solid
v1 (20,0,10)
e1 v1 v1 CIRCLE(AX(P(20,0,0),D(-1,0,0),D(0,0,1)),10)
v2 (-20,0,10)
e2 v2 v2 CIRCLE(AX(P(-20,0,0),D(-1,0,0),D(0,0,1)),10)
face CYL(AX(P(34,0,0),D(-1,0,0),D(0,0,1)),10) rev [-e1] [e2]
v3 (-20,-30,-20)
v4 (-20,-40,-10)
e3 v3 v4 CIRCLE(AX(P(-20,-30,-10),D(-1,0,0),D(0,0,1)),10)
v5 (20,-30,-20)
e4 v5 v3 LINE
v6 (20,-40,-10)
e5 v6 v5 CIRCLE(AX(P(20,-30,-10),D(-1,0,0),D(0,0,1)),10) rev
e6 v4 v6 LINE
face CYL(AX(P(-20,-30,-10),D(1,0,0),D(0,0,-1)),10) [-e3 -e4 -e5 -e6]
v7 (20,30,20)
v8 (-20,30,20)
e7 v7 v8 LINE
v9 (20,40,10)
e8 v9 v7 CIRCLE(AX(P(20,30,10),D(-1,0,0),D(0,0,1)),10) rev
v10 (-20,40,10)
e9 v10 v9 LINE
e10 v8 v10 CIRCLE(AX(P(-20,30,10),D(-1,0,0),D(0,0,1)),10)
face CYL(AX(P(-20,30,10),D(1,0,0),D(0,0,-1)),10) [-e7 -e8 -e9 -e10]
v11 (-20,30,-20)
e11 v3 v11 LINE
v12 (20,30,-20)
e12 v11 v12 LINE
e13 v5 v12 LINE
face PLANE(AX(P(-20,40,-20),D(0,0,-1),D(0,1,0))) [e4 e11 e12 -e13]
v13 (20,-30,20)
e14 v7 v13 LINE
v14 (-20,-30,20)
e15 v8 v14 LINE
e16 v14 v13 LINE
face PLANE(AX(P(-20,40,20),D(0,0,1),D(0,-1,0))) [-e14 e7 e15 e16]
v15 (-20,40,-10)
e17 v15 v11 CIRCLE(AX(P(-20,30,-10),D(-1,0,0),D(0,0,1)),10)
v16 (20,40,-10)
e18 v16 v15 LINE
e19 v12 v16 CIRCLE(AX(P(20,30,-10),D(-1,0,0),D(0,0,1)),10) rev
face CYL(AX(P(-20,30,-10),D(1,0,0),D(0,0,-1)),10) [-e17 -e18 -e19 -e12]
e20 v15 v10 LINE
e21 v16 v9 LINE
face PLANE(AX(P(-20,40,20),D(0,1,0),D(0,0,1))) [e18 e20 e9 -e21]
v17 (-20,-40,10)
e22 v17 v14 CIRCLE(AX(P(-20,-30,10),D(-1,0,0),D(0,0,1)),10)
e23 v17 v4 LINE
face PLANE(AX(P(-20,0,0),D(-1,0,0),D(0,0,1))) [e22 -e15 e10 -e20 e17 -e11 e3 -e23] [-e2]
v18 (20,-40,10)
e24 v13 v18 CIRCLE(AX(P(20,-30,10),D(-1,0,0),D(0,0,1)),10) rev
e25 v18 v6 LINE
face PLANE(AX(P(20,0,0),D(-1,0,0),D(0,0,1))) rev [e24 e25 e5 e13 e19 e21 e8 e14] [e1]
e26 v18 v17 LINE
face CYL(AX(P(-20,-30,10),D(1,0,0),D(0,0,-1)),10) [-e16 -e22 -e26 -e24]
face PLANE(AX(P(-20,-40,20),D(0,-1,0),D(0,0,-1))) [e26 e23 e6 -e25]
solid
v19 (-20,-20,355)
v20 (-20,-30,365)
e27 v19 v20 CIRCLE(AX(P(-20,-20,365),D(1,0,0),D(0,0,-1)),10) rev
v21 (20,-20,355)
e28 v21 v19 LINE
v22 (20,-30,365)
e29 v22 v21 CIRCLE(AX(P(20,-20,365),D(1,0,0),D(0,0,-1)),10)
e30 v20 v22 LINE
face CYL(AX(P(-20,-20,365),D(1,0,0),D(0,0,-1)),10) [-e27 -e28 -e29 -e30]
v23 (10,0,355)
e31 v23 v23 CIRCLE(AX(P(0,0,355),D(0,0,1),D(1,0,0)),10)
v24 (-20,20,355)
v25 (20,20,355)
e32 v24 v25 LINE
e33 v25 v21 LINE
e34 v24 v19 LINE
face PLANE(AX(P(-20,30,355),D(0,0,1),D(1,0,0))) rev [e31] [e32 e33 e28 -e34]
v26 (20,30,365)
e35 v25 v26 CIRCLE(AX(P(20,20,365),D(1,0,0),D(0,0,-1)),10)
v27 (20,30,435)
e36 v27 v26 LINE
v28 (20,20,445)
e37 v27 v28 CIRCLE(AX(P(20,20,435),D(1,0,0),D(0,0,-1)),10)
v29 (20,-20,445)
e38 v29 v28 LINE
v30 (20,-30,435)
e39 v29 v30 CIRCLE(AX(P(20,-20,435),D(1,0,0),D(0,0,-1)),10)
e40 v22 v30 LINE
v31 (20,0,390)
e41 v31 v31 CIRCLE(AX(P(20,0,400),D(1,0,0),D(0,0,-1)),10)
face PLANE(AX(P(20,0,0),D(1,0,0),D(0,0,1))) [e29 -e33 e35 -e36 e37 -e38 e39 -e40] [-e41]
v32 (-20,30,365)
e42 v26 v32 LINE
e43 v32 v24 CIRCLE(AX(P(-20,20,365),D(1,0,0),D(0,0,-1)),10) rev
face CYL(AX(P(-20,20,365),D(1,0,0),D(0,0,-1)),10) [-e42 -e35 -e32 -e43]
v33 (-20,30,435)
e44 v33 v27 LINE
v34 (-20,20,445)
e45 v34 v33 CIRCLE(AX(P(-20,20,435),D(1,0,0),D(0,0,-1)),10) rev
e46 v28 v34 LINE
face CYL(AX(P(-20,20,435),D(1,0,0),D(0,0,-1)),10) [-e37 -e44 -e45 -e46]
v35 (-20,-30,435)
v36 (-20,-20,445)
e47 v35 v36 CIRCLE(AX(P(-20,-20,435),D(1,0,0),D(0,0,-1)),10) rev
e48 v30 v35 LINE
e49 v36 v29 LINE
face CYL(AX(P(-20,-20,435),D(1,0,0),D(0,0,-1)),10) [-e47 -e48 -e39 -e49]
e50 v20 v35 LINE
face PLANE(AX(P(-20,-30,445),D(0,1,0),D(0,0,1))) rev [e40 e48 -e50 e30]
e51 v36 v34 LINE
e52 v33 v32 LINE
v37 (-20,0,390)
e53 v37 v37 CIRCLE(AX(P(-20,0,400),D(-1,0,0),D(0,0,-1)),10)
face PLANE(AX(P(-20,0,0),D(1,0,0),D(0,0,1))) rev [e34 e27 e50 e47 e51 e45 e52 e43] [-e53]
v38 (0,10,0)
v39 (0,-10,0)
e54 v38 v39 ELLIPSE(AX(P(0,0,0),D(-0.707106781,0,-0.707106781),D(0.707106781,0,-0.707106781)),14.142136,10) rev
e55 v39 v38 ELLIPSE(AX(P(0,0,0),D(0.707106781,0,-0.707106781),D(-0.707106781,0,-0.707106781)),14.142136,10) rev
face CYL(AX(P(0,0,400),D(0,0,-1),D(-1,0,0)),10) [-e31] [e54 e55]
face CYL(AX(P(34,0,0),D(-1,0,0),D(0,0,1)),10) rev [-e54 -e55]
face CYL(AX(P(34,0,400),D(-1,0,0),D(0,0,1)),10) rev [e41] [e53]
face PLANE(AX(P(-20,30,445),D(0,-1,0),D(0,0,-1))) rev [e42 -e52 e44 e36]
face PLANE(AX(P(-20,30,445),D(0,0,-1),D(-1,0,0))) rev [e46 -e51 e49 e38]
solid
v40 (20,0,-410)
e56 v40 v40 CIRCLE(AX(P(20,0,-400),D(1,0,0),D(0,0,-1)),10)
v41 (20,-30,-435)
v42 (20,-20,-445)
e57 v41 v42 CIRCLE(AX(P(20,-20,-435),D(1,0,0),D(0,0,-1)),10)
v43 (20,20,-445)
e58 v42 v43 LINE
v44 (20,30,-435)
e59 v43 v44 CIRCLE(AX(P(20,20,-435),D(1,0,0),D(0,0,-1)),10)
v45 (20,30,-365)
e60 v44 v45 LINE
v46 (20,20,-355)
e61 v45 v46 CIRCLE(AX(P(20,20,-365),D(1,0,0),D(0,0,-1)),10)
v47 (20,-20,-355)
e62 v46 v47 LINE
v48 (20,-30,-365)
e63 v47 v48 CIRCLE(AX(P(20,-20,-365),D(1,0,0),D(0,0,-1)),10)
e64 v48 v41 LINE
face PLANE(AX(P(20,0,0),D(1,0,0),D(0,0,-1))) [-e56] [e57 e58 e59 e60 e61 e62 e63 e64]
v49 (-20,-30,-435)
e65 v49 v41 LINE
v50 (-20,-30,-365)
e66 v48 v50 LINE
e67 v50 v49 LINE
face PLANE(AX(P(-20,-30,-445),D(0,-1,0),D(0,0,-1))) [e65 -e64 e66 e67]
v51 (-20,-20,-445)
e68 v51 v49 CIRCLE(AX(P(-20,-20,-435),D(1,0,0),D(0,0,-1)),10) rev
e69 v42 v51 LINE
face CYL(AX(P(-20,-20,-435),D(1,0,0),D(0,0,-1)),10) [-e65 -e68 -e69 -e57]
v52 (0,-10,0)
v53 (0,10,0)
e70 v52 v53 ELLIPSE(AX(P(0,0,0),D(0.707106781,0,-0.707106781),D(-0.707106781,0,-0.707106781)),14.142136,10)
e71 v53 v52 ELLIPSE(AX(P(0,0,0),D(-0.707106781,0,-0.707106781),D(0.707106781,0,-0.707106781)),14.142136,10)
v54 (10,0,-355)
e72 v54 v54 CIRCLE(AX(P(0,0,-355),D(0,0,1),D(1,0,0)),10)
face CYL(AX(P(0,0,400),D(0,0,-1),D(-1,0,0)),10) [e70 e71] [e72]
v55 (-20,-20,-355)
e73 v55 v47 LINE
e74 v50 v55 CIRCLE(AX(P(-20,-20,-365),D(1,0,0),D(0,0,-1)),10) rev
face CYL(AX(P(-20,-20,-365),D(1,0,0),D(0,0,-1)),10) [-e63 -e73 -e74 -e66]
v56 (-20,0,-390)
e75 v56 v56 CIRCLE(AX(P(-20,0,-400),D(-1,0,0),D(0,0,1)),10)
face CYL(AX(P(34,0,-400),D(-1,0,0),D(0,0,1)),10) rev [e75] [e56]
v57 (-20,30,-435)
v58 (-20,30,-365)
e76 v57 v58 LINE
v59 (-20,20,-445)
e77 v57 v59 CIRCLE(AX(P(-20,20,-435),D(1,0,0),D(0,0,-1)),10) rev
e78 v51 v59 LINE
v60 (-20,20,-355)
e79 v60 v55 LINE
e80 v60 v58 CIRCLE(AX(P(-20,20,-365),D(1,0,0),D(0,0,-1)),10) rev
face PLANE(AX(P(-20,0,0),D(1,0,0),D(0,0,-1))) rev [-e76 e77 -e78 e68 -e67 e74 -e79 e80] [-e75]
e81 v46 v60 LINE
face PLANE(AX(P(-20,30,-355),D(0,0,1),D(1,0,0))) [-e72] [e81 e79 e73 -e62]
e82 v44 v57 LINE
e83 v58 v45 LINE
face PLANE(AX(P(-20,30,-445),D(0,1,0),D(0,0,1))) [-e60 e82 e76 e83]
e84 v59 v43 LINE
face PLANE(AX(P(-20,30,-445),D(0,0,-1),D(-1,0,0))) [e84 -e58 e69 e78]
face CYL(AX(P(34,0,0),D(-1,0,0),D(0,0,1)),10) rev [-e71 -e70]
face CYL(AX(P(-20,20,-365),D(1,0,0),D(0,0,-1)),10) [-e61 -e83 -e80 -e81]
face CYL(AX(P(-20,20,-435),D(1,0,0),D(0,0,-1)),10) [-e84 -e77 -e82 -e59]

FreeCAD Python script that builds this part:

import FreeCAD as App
import Part
import Sketcher


def edges_at(feature, points):
    """Names of the edges that pass closest to the given points."""
    edges = feature.Shape.Edges
    near = lambda p: min(range(len(edges)), key=lambda i: edges[i].distToShape(Part.Vertex(*p))[0])
    return sorted({f"Edge{near(p) + 1}" for p in points})

doc = App.newDocument("Part")
body = doc.addObject("PartDesign::Body", "Body")

# Sketch on XY plane
sketch1 = doc.addObject("Sketcher::SketchObject", "Sketch")
body.addObject(sketch1)
sketch1.AttachmentSupport = (doc.XY_Plane, [""])
sketch1.MapMode = "FlatFace"
sketch1.addGeometry(Part.Circle(App.Vector(0, 0, 0), App.Vector(0, 0, 1), 10), False)
sketch1.addConstraint(Sketcher.Constraint("Coincident", 0, 3, -1, 1))
sketch1.addConstraint(Sketcher.Constraint("Diameter", 0, 20.0))
pad1 = doc.addObject("PartDesign::Pad", "Pad")
body.addObject(pad1)
pad1.Profile = sketch1
pad1.Length = 400
doc.recompute()

mirrored = doc.addObject("PartDesign::Mirrored", "Mirrored")
body.addObject(mirrored)
mirrored.Originals = [pad1]
mirrored.MirrorPlane = (doc.XY_Plane, [""])
body.Tip = mirrored

# Sketch on YZ plane
sketch2 = doc.addObject("Sketcher::SketchObject", "Sketch001")
body.addObject(sketch2)
sketch2.AttachmentSupport = (doc.YZ_Plane, [""])
sketch2.MapMode = "FlatFace"
sketch2.addGeometry(Part.LineSegment(App.Vector(-30, -355, 0), App.Vector(-30, -445, 0)), False)
sketch2.addGeometry(Part.LineSegment(App.Vector(-30, -445, 0), App.Vector(30, -445, 0)), False)
sketch2.addGeometry(Part.LineSegment(App.Vector(30, -445, 0), App.Vector(30, -355, 0)), False)
sketch2.addGeometry(Part.LineSegment(App.Vector(30, -355, 0), App.Vector(-30, -355, 0)), False)
sketch2.addConstraint(Sketcher.Constraint("Coincident", 0, 2, 1, 1))
sketch2.addConstraint(Sketcher.Constraint("Coincident", 1, 2, 2, 1))
sketch2.addConstraint(Sketcher.Constraint("Coincident", 2, 2, 3, 1))
sketch2.addConstraint(Sketcher.Constraint("Coincident", 3, 2, 0, 1))
sketch2.addConstraint(Sketcher.Constraint("Vertical", 0))
sketch2.addConstraint(Sketcher.Constraint("Horizontal", 1))
sketch2.addConstraint(Sketcher.Constraint("Vertical", 2))
sketch2.addConstraint(Sketcher.Constraint("Horizontal", 3))
sketch2.addConstraint(Sketcher.Constraint("DistanceX", 1, 1, 1, 2, 60.0))
sketch2.addConstraint(Sketcher.Constraint("DistanceY", 0, 2, 0, 1, 90.0))
sketch2.addConstraint(Sketcher.Constraint("DistanceX", 0, 2, -1, 1, 30.0))
sketch2.addConstraint(Sketcher.Constraint("DistanceY", 0, 2, -1, 1, 445.0))
pad2 = doc.addObject("PartDesign::Pad", "Pad001")
body.addObject(pad2)
pad2.Profile = sketch2
pad2.Length = 40
pad2.Midplane = True
doc.recompute()

mirrored2 = doc.addObject("PartDesign::Mirrored", "Mirrored001")
body.addObject(mirrored2)
mirrored2.Originals = [pad2]
mirrored2.MirrorPlane = (doc.XY_Plane, [""])
body.Tip = mirrored2

# Sketch on YZ plane
sketch3 = doc.addObject("Sketcher::SketchObject", "Sketch002")
body.addObject(sketch3)
sketch3.AttachmentSupport = (doc.YZ_Plane, [""])
sketch3.MapMode = "FlatFace"
sketch3.AttachmentOffset = App.Placement(App.Vector(0, 0, -20), App.Rotation())
sketch3.addGeometry(Part.Circle(App.Vector(0, -400, 0), App.Vector(0, 0, 1), 10), False)
sketch3.addGeometry(Part.Circle(App.Vector(0, 400, 0), App.Vector(0, 0, 1), 10), False)
sketch3.addConstraint(Sketcher.Constraint("Equal", 0, 1))
sketch3.addConstraint(Sketcher.Constraint("Symmetric", 0, 3, 1, 3, -1, 1))
sketch3.addConstraint(Sketcher.Constraint("PointOnObject", 0, 3, -2))
sketch3.addConstraint(Sketcher.Constraint("Diameter", 0, 20.0))
sketch3.addConstraint(Sketcher.Constraint("DistanceY", 0, 3, -1, 1, 400.0))
pocket1 = doc.addObject("PartDesign::Pocket", "Pocket")
body.addObject(pocket1)
pocket1.Profile = sketch3
pocket1.Length = 54
pocket1.Reversed = True
body2 = doc.addObject("PartDesign::Body", "Body001")

# Sketch on YZ plane
sketch4 = doc.addObject("Sketcher::SketchObject", "Sketch003")
body2.addObject(sketch4)
sketch4.AttachmentSupport = (doc.getObject("YZ_Plane001"), [""])
sketch4.MapMode = "FlatFace"
sketch4.addGeometry(Part.LineSegment(App.Vector(-40, 20, 0), App.Vector(-40, -20, 0)), False)
sketch4.addGeometry(Part.LineSegment(App.Vector(-40, -20, 0), App.Vector(40, -20, 0)), False)
sketch4.addGeometry(Part.LineSegment(App.Vector(40, -20, 0), App.Vector(40, 20, 0)), False)
sketch4.addGeometry(Part.LineSegment(App.Vector(40, 20, 0), App.Vector(-40, 20, 0)), False)
sketch4.addConstraint(Sketcher.Constraint("Coincident", 0, 2, 1, 1))
sketch4.addConstraint(Sketcher.Constraint("Coincident", 1, 2, 2, 1))
sketch4.addConstraint(Sketcher.Constraint("Coincident", 2, 2, 3, 1))
sketch4.addConstraint(Sketcher.Constraint("Coincident", 3, 2, 0, 1))
sketch4.addConstraint(Sketcher.Constraint("Vertical", 0))
sketch4.addConstraint(Sketcher.Constraint("Horizontal", 1))
sketch4.addConstraint(Sketcher.Constraint("Vertical", 2))
sketch4.addConstraint(Sketcher.Constraint("Horizontal", 3))
sketch4.addConstraint(Sketcher.Constraint("Symmetric", 0, 2, 2, 2, -1, 1))
sketch4.addConstraint(Sketcher.Constraint("DistanceX", 1, 1, 1, 2, 80.0))
sketch4.addConstraint(Sketcher.Constraint("DistanceY", 0, 2, 0, 1, 40.0))
pad3 = doc.addObject("PartDesign::Pad", "Pad002")
body2.addObject(pad3)
pad3.Profile = sketch4
pad3.Type = "TwoLengths"
pad3.Length = 20
pad3.Length2 = 20
body3 = doc.addObject("PartDesign::Body", "Body002")

# Sketch on YZ plane
sketch5 = doc.addObject("Sketcher::SketchObject", "Sketch004")
body3.addObject(sketch5)
sketch5.AttachmentSupport = (doc.getObject("YZ_Plane002"), [""])
sketch5.MapMode = "FlatFace"
sketch5.AttachmentOffset = App.Placement(App.Vector(0, 0, -20), App.Rotation())
sketch5.addGeometry(Part.Circle(App.Vector(0, 0, 0), App.Vector(0, 0, 1), 10), False)
sketch5.addConstraint(Sketcher.Constraint("Coincident", 0, 3, -1, 1))
sketch5.addConstraint(Sketcher.Constraint("Diameter", 0, 20.0))
pad4 = doc.addObject("PartDesign::Pad", "Pad003")
body3.addObject(pad4)
pad4.Profile = sketch5
pad4.Length = 54
body.AllowCompound = True
doc.recompute()

body4 = doc.addObject("PartDesign::Body", "Body003")
body4.BaseFeature = body3
boolean = doc.addObject("PartDesign::Boolean", "Boolean")
body.addObject(boolean)
boolean.Type = "Cut"
boolean.addObjects([body4])
doc.recompute()

fillet = doc.addObject("PartDesign::Fillet", "Fillet")
body.addObject(fillet)
fillet.Base = (boolean, edges_at(boolean, [
    (0, -30, -445),
    (0, -30, -355),
    (0, 30, -355),
    (0, 30, -445),
]))
fillet.Radius = 10
doc.recompute()

fillet2 = doc.addObject("PartDesign::Fillet", "Fillet001")
body.addObject(fillet2)
fillet2.Base = (fillet, edges_at(fillet, [
    (0, -30, 355),
    (0, -30, 445),
    (0, 30, 445),
    (0, 30, 355),
]))
fillet2.Radius = 10
doc.recompute()

boolean2 = doc.addObject("PartDesign::Boolean", "Boolean001")
body2.addObject(boolean2)
boolean2.Type = "Cut"
boolean2.addObjects([body3])
doc.recompute()

fillet3 = doc.addObject("PartDesign::Fillet", "Fillet002")
body2.addObject(fillet3)
fillet3.Base = (boolean2, edges_at(boolean2, [
    (0, -40, 20),
    (0, 40, 20),
    (0, 40, -20),
    (0, -40, -20),
]))
fillet3.Radius = 10

doc.recompute()
